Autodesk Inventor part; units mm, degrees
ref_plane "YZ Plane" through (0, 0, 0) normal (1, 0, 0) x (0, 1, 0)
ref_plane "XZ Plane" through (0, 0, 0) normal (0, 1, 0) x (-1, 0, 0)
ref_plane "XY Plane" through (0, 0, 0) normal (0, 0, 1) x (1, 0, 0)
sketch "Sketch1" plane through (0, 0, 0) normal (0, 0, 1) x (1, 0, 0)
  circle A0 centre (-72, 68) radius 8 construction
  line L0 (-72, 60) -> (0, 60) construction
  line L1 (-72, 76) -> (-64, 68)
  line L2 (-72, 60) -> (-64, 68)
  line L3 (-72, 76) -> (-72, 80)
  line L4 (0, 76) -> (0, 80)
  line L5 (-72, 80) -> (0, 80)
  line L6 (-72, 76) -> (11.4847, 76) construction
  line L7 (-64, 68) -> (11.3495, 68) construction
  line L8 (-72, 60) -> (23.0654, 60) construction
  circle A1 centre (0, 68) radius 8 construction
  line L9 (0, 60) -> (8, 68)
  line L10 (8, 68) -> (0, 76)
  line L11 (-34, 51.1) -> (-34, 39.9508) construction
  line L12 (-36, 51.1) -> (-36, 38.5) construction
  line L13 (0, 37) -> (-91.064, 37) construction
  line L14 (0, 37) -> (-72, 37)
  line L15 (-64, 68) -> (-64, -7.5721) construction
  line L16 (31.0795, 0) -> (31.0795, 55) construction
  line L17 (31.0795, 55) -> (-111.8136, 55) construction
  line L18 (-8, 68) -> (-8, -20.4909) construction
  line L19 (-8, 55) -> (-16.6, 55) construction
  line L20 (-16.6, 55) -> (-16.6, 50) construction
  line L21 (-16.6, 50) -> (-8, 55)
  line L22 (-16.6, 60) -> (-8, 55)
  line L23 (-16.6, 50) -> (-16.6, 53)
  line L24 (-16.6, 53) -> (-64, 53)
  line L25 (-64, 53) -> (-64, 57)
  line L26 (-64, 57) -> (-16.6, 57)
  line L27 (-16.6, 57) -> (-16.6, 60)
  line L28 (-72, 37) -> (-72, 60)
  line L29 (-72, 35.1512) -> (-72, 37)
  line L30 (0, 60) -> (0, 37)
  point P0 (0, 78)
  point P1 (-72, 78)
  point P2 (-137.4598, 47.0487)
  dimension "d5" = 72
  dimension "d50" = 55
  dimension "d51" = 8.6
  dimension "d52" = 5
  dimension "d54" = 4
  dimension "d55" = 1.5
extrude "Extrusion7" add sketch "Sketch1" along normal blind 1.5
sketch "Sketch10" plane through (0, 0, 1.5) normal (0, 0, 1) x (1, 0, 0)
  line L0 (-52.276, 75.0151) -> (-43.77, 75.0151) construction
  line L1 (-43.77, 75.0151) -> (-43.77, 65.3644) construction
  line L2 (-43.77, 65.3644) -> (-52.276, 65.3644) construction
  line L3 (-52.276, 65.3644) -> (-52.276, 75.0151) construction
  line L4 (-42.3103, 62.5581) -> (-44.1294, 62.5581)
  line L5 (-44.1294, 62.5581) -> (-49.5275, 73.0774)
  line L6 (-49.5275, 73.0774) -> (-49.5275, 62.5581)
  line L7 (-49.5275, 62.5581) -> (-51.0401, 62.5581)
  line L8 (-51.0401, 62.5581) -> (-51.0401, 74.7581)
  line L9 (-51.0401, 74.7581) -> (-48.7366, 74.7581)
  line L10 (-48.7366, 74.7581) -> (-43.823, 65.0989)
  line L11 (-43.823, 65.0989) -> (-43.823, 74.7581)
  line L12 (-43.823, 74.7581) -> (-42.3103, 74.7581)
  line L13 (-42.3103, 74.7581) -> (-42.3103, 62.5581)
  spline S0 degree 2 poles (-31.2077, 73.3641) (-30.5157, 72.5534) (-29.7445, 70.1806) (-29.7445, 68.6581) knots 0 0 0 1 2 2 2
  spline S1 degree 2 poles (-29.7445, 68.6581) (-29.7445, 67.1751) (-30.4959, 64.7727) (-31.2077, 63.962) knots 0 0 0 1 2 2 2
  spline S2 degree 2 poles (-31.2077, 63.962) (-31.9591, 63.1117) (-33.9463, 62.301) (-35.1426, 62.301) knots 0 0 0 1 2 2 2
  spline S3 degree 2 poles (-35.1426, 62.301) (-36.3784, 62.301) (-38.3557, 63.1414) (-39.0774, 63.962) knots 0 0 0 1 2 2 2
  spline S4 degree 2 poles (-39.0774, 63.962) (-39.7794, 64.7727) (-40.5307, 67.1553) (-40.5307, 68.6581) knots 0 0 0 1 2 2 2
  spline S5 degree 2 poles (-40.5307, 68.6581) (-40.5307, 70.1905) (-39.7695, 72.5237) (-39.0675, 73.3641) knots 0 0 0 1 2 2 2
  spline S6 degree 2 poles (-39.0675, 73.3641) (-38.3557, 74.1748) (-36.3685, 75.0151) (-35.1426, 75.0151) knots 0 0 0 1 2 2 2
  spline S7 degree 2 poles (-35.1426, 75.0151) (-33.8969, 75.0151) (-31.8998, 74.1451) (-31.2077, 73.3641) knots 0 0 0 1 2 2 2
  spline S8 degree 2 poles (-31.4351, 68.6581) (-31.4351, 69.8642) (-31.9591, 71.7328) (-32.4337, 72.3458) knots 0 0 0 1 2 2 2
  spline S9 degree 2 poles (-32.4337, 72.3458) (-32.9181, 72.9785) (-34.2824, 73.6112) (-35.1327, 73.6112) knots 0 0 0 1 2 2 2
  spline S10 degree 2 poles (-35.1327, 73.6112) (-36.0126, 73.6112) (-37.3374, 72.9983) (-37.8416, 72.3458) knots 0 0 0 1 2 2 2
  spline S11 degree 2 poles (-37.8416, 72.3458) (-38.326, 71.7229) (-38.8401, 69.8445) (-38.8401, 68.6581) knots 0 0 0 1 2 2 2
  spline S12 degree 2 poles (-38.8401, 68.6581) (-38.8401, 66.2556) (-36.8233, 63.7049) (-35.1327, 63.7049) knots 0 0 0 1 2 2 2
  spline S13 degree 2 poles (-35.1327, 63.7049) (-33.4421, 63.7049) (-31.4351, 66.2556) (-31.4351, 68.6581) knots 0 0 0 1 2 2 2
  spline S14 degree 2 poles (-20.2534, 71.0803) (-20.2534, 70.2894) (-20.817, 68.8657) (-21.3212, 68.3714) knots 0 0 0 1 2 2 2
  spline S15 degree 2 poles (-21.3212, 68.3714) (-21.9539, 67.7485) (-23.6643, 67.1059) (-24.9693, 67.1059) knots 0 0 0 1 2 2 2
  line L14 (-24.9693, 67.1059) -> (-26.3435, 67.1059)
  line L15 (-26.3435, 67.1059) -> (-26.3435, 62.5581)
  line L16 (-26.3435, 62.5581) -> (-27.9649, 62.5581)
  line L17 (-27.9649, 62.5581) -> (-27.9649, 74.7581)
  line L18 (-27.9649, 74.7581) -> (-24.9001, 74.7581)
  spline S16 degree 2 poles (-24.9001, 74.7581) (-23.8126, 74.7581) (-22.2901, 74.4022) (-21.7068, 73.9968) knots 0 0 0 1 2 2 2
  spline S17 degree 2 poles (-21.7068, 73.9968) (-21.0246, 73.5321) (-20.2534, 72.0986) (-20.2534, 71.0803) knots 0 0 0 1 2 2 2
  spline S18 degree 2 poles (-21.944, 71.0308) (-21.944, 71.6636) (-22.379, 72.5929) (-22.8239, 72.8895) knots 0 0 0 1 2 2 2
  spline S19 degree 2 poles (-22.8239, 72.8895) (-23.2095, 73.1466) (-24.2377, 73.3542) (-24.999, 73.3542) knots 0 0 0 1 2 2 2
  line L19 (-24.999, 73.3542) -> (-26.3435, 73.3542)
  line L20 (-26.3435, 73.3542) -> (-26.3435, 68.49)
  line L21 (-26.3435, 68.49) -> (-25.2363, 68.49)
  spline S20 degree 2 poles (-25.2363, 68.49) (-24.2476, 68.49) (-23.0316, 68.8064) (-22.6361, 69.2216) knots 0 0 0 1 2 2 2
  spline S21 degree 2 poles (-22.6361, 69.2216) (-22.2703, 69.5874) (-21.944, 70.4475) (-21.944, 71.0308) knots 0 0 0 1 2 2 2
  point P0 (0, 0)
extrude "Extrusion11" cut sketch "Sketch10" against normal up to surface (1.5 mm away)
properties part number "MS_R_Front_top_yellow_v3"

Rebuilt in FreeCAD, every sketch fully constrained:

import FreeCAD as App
import Part
import Sketcher

V = App.Vector
Q = App.Units.Quantity

doc = App.newDocument("Part")
body = doc.addObject("PartDesign::Body", "Body")
body.AllowCompound = True

sketch1 = body.newObject("Sketcher::SketchObject", "Sketch")
sketch1.AttachmentSupport = (doc.getObject("XY_Plane"), [""])
sketch1.MapMode = "FlatFace"
sketch1.addGeometry(Part.LineSegment(V(-72, 80, 0), V(-72, 76, 0)), False)
sketch1.addGeometry(Part.LineSegment(V(-72, 76, 0), V(-64, 68, 0)), False)
sketch1.addGeometry(Part.LineSegment(V(-64, 68, 0), V(-72, 60, 0)), False)
sketch1.addGeometry(Part.LineSegment(V(-72, 60, 0), V(-72, 37, 0)), False)
sketch1.addGeometry(Part.LineSegment(V(-72, 37, 0), V(0, 37, 0)), False)
sketch1.addGeometry(Part.LineSegment(V(0, 37, 0), V(0, 60, 0)), False)
sketch1.addGeometry(Part.LineSegment(V(0, 60, 0), V(8, 68, 0)), False)
sketch1.addGeometry(Part.LineSegment(V(8, 68, 0), V(0, 76, 0)), False)
sketch1.addGeometry(Part.LineSegment(V(0, 76, 0), V(0, 80, 0)), False)
sketch1.addGeometry(Part.LineSegment(V(0, 80, 0), V(-72, 80, 0)), False)
sketch1.addGeometry(Part.LineSegment(V(-8, 55, 0), V(-16.6, 50, 0)), False)
sketch1.addGeometry(Part.LineSegment(V(-16.6, 50, 0), V(-16.6, 53, 0)), False)
sketch1.addGeometry(Part.LineSegment(V(-16.6, 53, 0), V(-64, 53, 0)), False)
sketch1.addGeometry(Part.LineSegment(V(-64, 53, 0), V(-64, 57, 0)), False)
sketch1.addGeometry(Part.LineSegment(V(-64, 57, 0), V(-16.6, 57, 0)), False)
sketch1.addGeometry(Part.LineSegment(V(-16.6, 57, 0), V(-16.6, 60, 0)), False)
sketch1.addGeometry(Part.LineSegment(V(-16.6, 60, 0), V(-8, 55, 0)), False)
sketch1.addConstraint(Sketcher.Constraint("Coincident", 0, 2, 1, 1))
sketch1.addConstraint(Sketcher.Constraint("Coincident", 1, 2, 2, 1))
sketch1.addConstraint(Sketcher.Constraint("Coincident", 2, 2, 3, 1))
sketch1.addConstraint(Sketcher.Constraint("Coincident", 3, 2, 4, 1))
sketch1.addConstraint(Sketcher.Constraint("Coincident", 4, 2, 5, 1))
sketch1.addConstraint(Sketcher.Constraint("Coincident", 5, 2, 6, 1))
sketch1.addConstraint(Sketcher.Constraint("Coincident", 6, 2, 7, 1))
sketch1.addConstraint(Sketcher.Constraint("Coincident", 7, 2, 8, 1))
sketch1.addConstraint(Sketcher.Constraint("Coincident", 8, 2, 9, 1))
sketch1.addConstraint(Sketcher.Constraint("Coincident", 9, 2, 0, 1))
sketch1.addConstraint(Sketcher.Constraint("Coincident", 10, 2, 11, 1))
sketch1.addConstraint(Sketcher.Constraint("Coincident", 11, 2, 12, 1))
sketch1.addConstraint(Sketcher.Constraint("Coincident", 12, 2, 13, 1))
sketch1.addConstraint(Sketcher.Constraint("Coincident", 13, 2, 14, 1))
sketch1.addConstraint(Sketcher.Constraint("Coincident", 14, 2, 15, 1))
sketch1.addConstraint(Sketcher.Constraint("Coincident", 15, 2, 16, 1))
sketch1.addConstraint(Sketcher.Constraint("Coincident", 16, 2, 10, 1))
sketch1.addConstraint(Sketcher.Constraint("Vertical", 0))
sketch1.addConstraint(Sketcher.Constraint("Vertical", 3))
sketch1.addConstraint(Sketcher.Constraint("Horizontal", 4))
sketch1.addConstraint(Sketcher.Constraint("Vertical", 5))
sketch1.addConstraint(Sketcher.Constraint("Vertical", 8))
sketch1.addConstraint(Sketcher.Constraint("Horizontal", 9))
sketch1.addConstraint(Sketcher.Constraint("Vertical", 11))
sketch1.addConstraint(Sketcher.Constraint("Horizontal", 12))
sketch1.addConstraint(Sketcher.Constraint("Vertical", 13))
sketch1.addConstraint(Sketcher.Constraint("Horizontal", 14))
sketch1.addConstraint(Sketcher.Constraint("Vertical", 15))
sketch1.addConstraint(Sketcher.Constraint("PointOnObject", 4, 2, -2))
sketch1.addConstraint(Sketcher.Constraint("PointOnObject", 7, 2, -2))
sketch1.addConstraint(Sketcher.Constraint("Perpendicular", 1, 2))
sketch1.addConstraint(Sketcher.Constraint("Parallel", 2, 6))
sketch1.addConstraint(Sketcher.Constraint("Perpendicular", 6, 7))
sketch1.addConstraint(Sketcher.Constraint("Horizontal", 2, 2, 5, 2))
sketch1.addConstraint(Sketcher.Constraint("Horizontal", 1, 2, 6, 2))
sketch1.addConstraint(Sketcher.Constraint("Horizontal", 0, 2, 7, 2))
sketch1.addConstraint(Sketcher.Constraint("Horizontal", 5, 2, 15, 2))
sketch1.addConstraint(Sketcher.Constraint("Vertical", 1, 2, 12, 2))
sketch1.addConstraint(Sketcher.Constraint("Vertical", 11, 2, 14, 2))
sketch1.addConstraint(Sketcher.Constraint("Equal", 8, 13))
sketch1.addConstraint(Sketcher.Constraint("Equal", 11, 15))
sketch1.addConstraint(Sketcher.Constraint("Equal", 1, 2))
sketch1.addConstraint(Sketcher.Constraint("Equal", 10, 16))
sketch1.addConstraint(Sketcher.Constraint("DistanceX", 4, 1, 4, 2, Q("72 mm")))
sketch1.addConstraint(Sketcher.Constraint("DistanceY", 0, 2, 0, 1, Q("4 mm")))
sketch1.addConstraint(Sketcher.Constraint("DistanceY", -1, 1, 16, 2, Q("55 mm")))
sketch1.addConstraint(Sketcher.Constraint("DistanceY", 16, 2, 5, 2, Q("5 mm")))
sketch1.addConstraint(Sketcher.Constraint("DistanceX", 11, 2, 16, 2, Q("8.6 mm")))
sketch1.addConstraint(Sketcher.Constraint("DistanceY", 3, 2, 3, 1, Q("23 mm")))
sketch1.addConstraint(Sketcher.Constraint("DistanceX", 12, 2, 12, 1, Q("47.4 mm")))
sketch1.addConstraint(Sketcher.Constraint("DistanceY", -1, 1, 0, 2, Q("76 mm")))
pad1 = body.newObject("PartDesign::Pad", "Pad")
pad1.Profile = sketch1
pad1.Length = 1.5

sketch2 = body.newObject("Sketcher::SketchObject", "Sketch001")
sketch2.AttachmentSupport = (doc.getObject("XY_Plane"), [""])
sketch2.MapMode = "FlatFace"
sketch2.AttachmentOffset = App.Placement(V(0, 0, 1.5), App.Rotation())
sketch2.addGeometry(Part.LineSegment(V(-44.1294, 62.5581, 0), V(-42.3103, 62.5581, 0)), False)
sketch2.addGeometry(Part.LineSegment(V(-42.3103, 62.5581, 0), V(-42.3103, 74.7581, 0)), False)
sketch2.addGeometry(Part.LineSegment(V(-42.3103, 74.7581, 0), V(-43.823, 74.7581, 0)), False)
sketch2.addGeometry(Part.LineSegment(V(-43.823, 74.7581, 0), V(-43.823, 65.0989, 0)), False)
sketch2.addGeometry(Part.LineSegment(V(-43.823, 65.0989, 0), V(-48.7366, 74.7581, 0)), False)
sketch2.addGeometry(Part.LineSegment(V(-48.7366, 74.7581, 0), V(-51.0401, 74.7581, 0)), False)
sketch2.addGeometry(Part.LineSegment(V(-51.0401, 74.7581, 0), V(-51.0401, 62.5581, 0)), False)
sketch2.addGeometry(Part.LineSegment(V(-51.0401, 62.5581, 0), V(-49.5275, 62.5581, 0)), False)
sketch2.addGeometry(Part.LineSegment(V(-49.5275, 62.5581, 0), V(-49.5275, 73.0774, 0)), False)
sketch2.addGeometry(Part.LineSegment(V(-49.5275, 73.0774, 0), V(-44.1294, 62.5581, 0)), False)
sketch2.addGeometry(Part.BSplineCurve([V(-31.2077, 73.3641, 0), V(-30.5157, 72.5534, 0), V(-29.7445, 70.1806, 0), V(-29.7445, 68.6581, 0)], [3, 1, 3], [0, 1, 2], False, 2, [1, 1, 1, 1], False), False)
sketch2.addGeometry(Part.BSplineCurve([V(-35.1426, 75.0151, 0), V(-33.8969, 75.0151, 0), V(-31.8998, 74.1451, 0), V(-31.2077, 73.3641, 0)], [3, 1, 3], [0, 1, 2], False, 2, [1, 1, 1, 1], False), False)
sketch2.addGeometry(Part.BSplineCurve([V(-39.0675, 73.3641, 0), V(-38.3557, 74.1748, 0), V(-36.3685, 75.0151, 0), V(-35.1426, 75.0151, 0)], [3, 1, 3], [0, 1, 2], False, 2, [1, 1, 1, 1], False), False)
sketch2.addGeometry(Part.BSplineCurve([V(-40.5307, 68.6581, 0), V(-40.5307, 70.1905, 0), V(-39.7695, 72.5237, 0), V(-39.0675, 73.3641, 0)], [3, 1, 3], [0, 1, 2], False, 2, [1, 1, 1, 1], False), False)
sketch2.addGeometry(Part.BSplineCurve([V(-39.0774, 63.962, 0), V(-39.7794, 64.7727, 0), V(-40.5307, 67.1553, 0), V(-40.5307, 68.6581, 0)], [3, 1, 3], [0, 1, 2], False, 2, [1, 1, 1, 1], False), False)
sketch2.addGeometry(Part.BSplineCurve([V(-35.1426, 62.301, 0), V(-36.3784, 62.301, 0), V(-38.3557, 63.1414, 0), V(-39.0774, 63.962, 0)], [3, 1, 3], [0, 1, 2], False, 2, [1, 1, 1, 1], False), False)
sketch2.addGeometry(Part.BSplineCurve([V(-31.2077, 63.962, 0), V(-31.9591, 63.1117, 0), V(-33.9463, 62.301, 0), V(-35.1426, 62.301, 0)], [3, 1, 3], [0, 1, 2], False, 2, [1, 1, 1, 1], False), False)
sketch2.addGeometry(Part.BSplineCurve([V(-29.7445, 68.6581, 0), V(-29.7445, 67.1751, 0), V(-30.4959, 64.7727, 0), V(-31.2077, 63.962, 0)], [3, 1, 3], [0, 1, 2], False, 2, [1, 1, 1, 1], False), False)
sketch2.addGeometry(Part.BSplineCurve([V(-31.4351, 68.6581, 0), V(-31.4351, 69.8642, 0), V(-31.9591, 71.7328, 0), V(-32.4337, 72.3458, 0)], [3, 1, 3], [0, 1, 2], False, 2, [1, 1, 1, 1], False), False)
sketch2.addGeometry(Part.BSplineCurve([V(-35.1327, 63.7049, 0), V(-33.4421, 63.7049, 0), V(-31.4351, 66.2556, 0), V(-31.4351, 68.6581, 0)], [3, 1, 3], [0, 1, 2], False, 2, [1, 1, 1, 1], False), False)
sketch2.addGeometry(Part.BSplineCurve([V(-38.8401, 68.6581, 0), V(-38.8401, 66.2556, 0), V(-36.8233, 63.7049, 0), V(-35.1327, 63.7049, 0)], [3, 1, 3], [0, 1, 2], False, 2, [1, 1, 1, 1], False), False)
sketch2.addGeometry(Part.BSplineCurve([V(-37.8416, 72.3458, 0), V(-38.326, 71.7229, 0), V(-38.8401, 69.8445, 0), V(-38.8401, 68.6581, 0)], [3, 1, 3], [0, 1, 2], False, 2, [1, 1, 1, 1], False), False)
sketch2.addGeometry(Part.BSplineCurve([V(-35.1327, 73.6112, 0), V(-36.0126, 73.6112, 0), V(-37.3374, 72.9983, 0), V(-37.8416, 72.3458, 0)], [3, 1, 3], [0, 1, 2], False, 2, [1, 1, 1, 1], False), False)
sketch2.addGeometry(Part.BSplineCurve([V(-32.4337, 72.3458, 0), V(-32.9181, 72.9785, 0), V(-34.2824, 73.6112, 0), V(-35.1327, 73.6112, 0)], [3, 1, 3], [0, 1, 2], False, 2, [1, 1, 1, 1], False), False)
sketch2.addGeometry(Part.BSplineCurve([V(-20.2534, 71.0803, 0), V(-20.2534, 70.2894, 0), V(-20.817, 68.8657, 0), V(-21.3212, 68.3714, 0)], [3, 1, 3], [0, 1, 2], False, 2, [1, 1, 1, 1], False), False)
sketch2.addGeometry(Part.BSplineCurve([V(-21.7068, 73.9968, 0), V(-21.0246, 73.5321, 0), V(-20.2534, 72.0986, 0), V(-20.2534, 71.0803, 0)], [3, 1, 3], [0, 1, 2], False, 2, [1, 1, 1, 1], False), False)
sketch2.addGeometry(Part.BSplineCurve([V(-24.9001, 74.7581, 0), V(-23.8126, 74.7581, 0), V(-22.2901, 74.4022, 0), V(-21.7068, 73.9968, 0)], [3, 1, 3], [0, 1, 2], False, 2, [1, 1, 1, 1], False), False)
sketch2.addGeometry(Part.LineSegment(V(-24.9001, 74.7581, 0), V(-27.9649, 74.7581, 0)), False)
sketch2.addGeometry(Part.LineSegment(V(-27.9649, 74.7581, 0), V(-27.9649, 62.5581, 0)), False)
sketch2.addGeometry(Part.LineSegment(V(-27.9649, 62.5581, 0), V(-26.3435, 62.5581, 0)), False)
sketch2.addGeometry(Part.LineSegment(V(-26.3435, 62.5581, 0), V(-26.3435, 67.1059, 0)), False)
sketch2.addGeometry(Part.LineSegment(V(-26.3435, 67.1059, 0), V(-24.9693, 67.1059, 0)), False)
sketch2.addGeometry(Part.BSplineCurve([V(-21.3212, 68.3714, 0), V(-21.9539, 67.7485, 0), V(-23.6643, 67.1059, 0), V(-24.9693, 67.1059, 0)], [3, 1, 3], [0, 1, 2], False, 2, [1, 1, 1, 1], False), False)
sketch2.addGeometry(Part.BSplineCurve([V(-21.944, 71.0308, 0), V(-21.944, 71.6636, 0), V(-22.379, 72.5929, 0), V(-22.8239, 72.8895, 0)], [3, 1, 3], [0, 1, 2], False, 2, [1, 1, 1, 1], False), False)
sketch2.addGeometry(Part.BSplineCurve([V(-22.6361, 69.2216, 0), V(-22.2703, 69.5874, 0), V(-21.944, 70.4475, 0), V(-21.944, 71.0308, 0)], [3, 1, 3], [0, 1, 2], False, 2, [1, 1, 1, 1], False), False)
sketch2.addGeometry(Part.BSplineCurve([V(-25.2363, 68.49, 0), V(-24.2476, 68.49, 0), V(-23.0316, 68.8064, 0), V(-22.6361, 69.2216, 0)], [3, 1, 3], [0, 1, 2], False, 2, [1, 1, 1, 1], False), False)
sketch2.addGeometry(Part.LineSegment(V(-25.2363, 68.49, 0), V(-26.3435, 68.49, 0)), False)
sketch2.addGeometry(Part.LineSegment(V(-26.3435, 68.49, 0), V(-26.3435, 73.3542, 0)), False)
sketch2.addGeometry(Part.LineSegment(V(-26.3435, 73.3542, 0), V(-24.999, 73.3542, 0)), False)
sketch2.addGeometry(Part.BSplineCurve([V(-22.8239, 72.8895, 0), V(-23.2095, 73.1466, 0), V(-24.2377, 73.3542, 0), V(-24.999, 73.3542, 0)], [3, 1, 3], [0, 1, 2], False, 2, [1, 1, 1, 1], False), False)
sketch2.addConstraint(Sketcher.Constraint("Block", 10))
sketch2.addConstraint(Sketcher.Constraint("Block", 11))
sketch2.addConstraint(Sketcher.Constraint("Block", 12))
sketch2.addConstraint(Sketcher.Constraint("Block", 13))
sketch2.addConstraint(Sketcher.Constraint("Block", 14))
sketch2.addConstraint(Sketcher.Constraint("Block", 15))
sketch2.addConstraint(Sketcher.Constraint("Block", 16))
sketch2.addConstraint(Sketcher.Constraint("Block", 17))
sketch2.addConstraint(Sketcher.Constraint("Block", 18))
sketch2.addConstraint(Sketcher.Constraint("Block", 19))
sketch2.addConstraint(Sketcher.Constraint("Block", 20))
sketch2.addConstraint(Sketcher.Constraint("Block", 21))
sketch2.addConstraint(Sketcher.Constraint("Block", 22))
sketch2.addConstraint(Sketcher.Constraint("Block", 23))
sketch2.addConstraint(Sketcher.Constraint("Block", 24))
sketch2.addConstraint(Sketcher.Constraint("Block", 25))
sketch2.addConstraint(Sketcher.Constraint("Block", 26))
sketch2.addConstraint(Sketcher.Constraint("Block", 32))
sketch2.addConstraint(Sketcher.Constraint("Block", 33))
sketch2.addConstraint(Sketcher.Constraint("Block", 34))
sketch2.addConstraint(Sketcher.Constraint("Block", 35))
sketch2.addConstraint(Sketcher.Constraint("Block", 39))
sketch2.addConstraint(Sketcher.Constraint("Coincident", 0, 2, 1, 1))
sketch2.addConstraint(Sketcher.Constraint("Coincident", 1, 2, 2, 1))
sketch2.addConstraint(Sketcher.Constraint("Coincident", 2, 2, 3, 1))
sketch2.addConstraint(Sketcher.Constraint("Coincident", 3, 2, 4, 1))
sketch2.addConstraint(Sketcher.Constraint("Coincident", 4, 2, 5, 1))
sketch2.addConstraint(Sketcher.Constraint("Coincident", 5, 2, 6, 1))
sketch2.addConstraint(Sketcher.Constraint("Coincident", 6, 2, 7, 1))
sketch2.addConstraint(Sketcher.Constraint("Coincident", 7, 2, 8, 1))
sketch2.addConstraint(Sketcher.Constraint("Coincident", 8, 2, 9, 1))
sketch2.addConstraint(Sketcher.Constraint("Coincident", 9, 2, 0, 1))
sketch2.addConstraint(Sketcher.Constraint("Coincident", 26, 1, 27, 1))
sketch2.addConstraint(Sketcher.Constraint("Coincident", 27, 2, 28, 1))
sketch2.addConstraint(Sketcher.Constraint("Coincident", 28, 2, 29, 1))
sketch2.addConstraint(Sketcher.Constraint("Coincident", 29, 2, 30, 1))
sketch2.addConstraint(Sketcher.Constraint("Coincident", 30, 2, 31, 1))
sketch2.addConstraint(Sketcher.Constraint("Coincident", 31, 2, 32, 2))
sketch2.addConstraint(Sketcher.Constraint("Coincident", 35, 1, 36, 1))
sketch2.addConstraint(Sketcher.Constraint("Coincident", 36, 2, 37, 1))
sketch2.addConstraint(Sketcher.Constraint("Coincident", 37, 2, 38, 1))
sketch2.addConstraint(Sketcher.Constraint("Coincident", 38, 2, 39, 2))
sketch2.addConstraint(Sketcher.Constraint("Horizontal", 0))
sketch2.addConstraint(Sketcher.Constraint("Vertical", 1))
sketch2.addConstraint(Sketcher.Constraint("Horizontal", 2))
sketch2.addConstraint(Sketcher.Constraint("Vertical", 3))
sketch2.addConstraint(Sketcher.Constraint("Horizontal", 5))
sketch2.addConstraint(Sketcher.Constraint("Vertical", 6))
sketch2.addConstraint(Sketcher.Constraint("Horizontal", 7))
sketch2.addConstraint(Sketcher.Constraint("Vertical", 8))
sketch2.addConstraint(Sketcher.Constraint("Horizontal", 27))
sketch2.addConstraint(Sketcher.Constraint("Vertical", 28))
sketch2.addConstraint(Sketcher.Constraint("Horizontal", 29))
sketch2.addConstraint(Sketcher.Constraint("Vertical", 30))
sketch2.addConstraint(Sketcher.Constraint("Horizontal", 31))
sketch2.addConstraint(Sketcher.Constraint("Horizontal", 36))
sketch2.addConstraint(Sketcher.Constraint("Vertical", 37))
sketch2.addConstraint(Sketcher.Constraint("Horizontal", 38))
sketch2.addConstraint(Sketcher.Constraint("Horizontal", 2, 2, 4, 2))
sketch2.addConstraint(Sketcher.Constraint("Horizontal", 0, 2, 6, 2))
sketch2.addConstraint(Sketcher.Constraint("Horizontal", 5, 2, 27, 2))
sketch2.addConstraint(Sketcher.Constraint("Horizontal", 9, 2, 28, 2))
sketch2.addConstraint(Sketcher.Constraint("Vertical", 30, 2, 36, 2))
sketch2.addConstraint(Sketcher.Constraint("Equal", 2, 7))
sketch2.addConstraint(Sketcher.Constraint("DistanceY", 1, 1, 1, 2, Q("12.2 mm")))
sketch2.addConstraint(Sketcher.Constraint("DistanceX", 0, 1, 0, 2, Q("1.819 mm")))
sketch2.addConstraint(Sketcher.Constraint("DistanceX", 5, 2, -1, 1, Q("51.04 mm")))
sketch2.addConstraint(Sketcher.Constraint("DistanceX", 2, 2, 2, 1, Q("1.5127 mm")))
sketch2.addConstraint(Sketcher.Constraint("DistanceX", 5, 2, 5, 1, Q("2.3035 mm")))
sketch2.addConstraint(Sketcher.Constraint("DistanceX", 27, 2, 27, 1, Q("3.0648 mm")))
sketch2.addConstraint(Sketcher.Constraint("DistanceX", 29, 1, 29, 2, Q("1.6214 mm")))
sketch2.addConstraint(Sketcher.Constraint("DistanceY", 3, 2, 3, 1, Q("9.6592 mm")))
sketch2.addConstraint(Sketcher.Constraint("DistanceY", 8, 1, 8, 2, Q("10.5193 mm")))
sketch2.addConstraint(Sketcher.Constraint("DistanceX", 2, 2, -1, 1, Q("43.823 mm")))
pocket1 = body.newObject("PartDesign::Pocket", "Pocket")
pocket1.Profile = sketch2
pocket1.Length = 1.5

doc.recompute()
